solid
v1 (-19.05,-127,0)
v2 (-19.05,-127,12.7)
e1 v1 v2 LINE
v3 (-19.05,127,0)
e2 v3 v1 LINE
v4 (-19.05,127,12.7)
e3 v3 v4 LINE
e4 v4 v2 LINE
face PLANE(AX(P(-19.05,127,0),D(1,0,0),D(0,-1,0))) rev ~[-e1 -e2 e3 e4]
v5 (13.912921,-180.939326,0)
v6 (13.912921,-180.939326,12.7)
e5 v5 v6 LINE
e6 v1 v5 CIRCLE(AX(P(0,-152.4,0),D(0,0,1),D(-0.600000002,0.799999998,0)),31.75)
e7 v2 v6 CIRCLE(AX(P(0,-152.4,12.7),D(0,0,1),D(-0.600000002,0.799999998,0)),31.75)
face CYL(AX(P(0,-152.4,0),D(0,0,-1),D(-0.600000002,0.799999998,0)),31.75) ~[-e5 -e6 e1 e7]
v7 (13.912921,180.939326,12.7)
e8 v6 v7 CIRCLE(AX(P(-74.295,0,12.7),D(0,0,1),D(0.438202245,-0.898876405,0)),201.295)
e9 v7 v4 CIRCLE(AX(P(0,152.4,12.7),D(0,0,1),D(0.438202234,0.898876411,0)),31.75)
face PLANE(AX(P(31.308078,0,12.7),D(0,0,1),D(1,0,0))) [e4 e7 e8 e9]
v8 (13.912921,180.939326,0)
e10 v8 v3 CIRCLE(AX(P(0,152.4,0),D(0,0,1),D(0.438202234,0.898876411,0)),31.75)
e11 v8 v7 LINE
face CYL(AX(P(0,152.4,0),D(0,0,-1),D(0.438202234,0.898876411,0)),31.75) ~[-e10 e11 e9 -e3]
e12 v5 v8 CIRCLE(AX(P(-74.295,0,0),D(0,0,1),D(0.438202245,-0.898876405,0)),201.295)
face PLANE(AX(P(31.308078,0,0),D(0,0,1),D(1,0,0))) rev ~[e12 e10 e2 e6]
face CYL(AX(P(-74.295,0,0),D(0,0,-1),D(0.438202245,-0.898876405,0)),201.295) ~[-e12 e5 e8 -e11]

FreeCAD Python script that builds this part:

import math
import FreeCAD as App
import Part
import Sketcher
from FreeCAD import Vector
Q = App.Units.Quantity

doc = App.newDocument("Part")
body = doc.addObject("PartDesign::Body", "Body")

sketch1 = body.newObject("Sketcher::SketchObject", "Sketch")
sketch1.AttachmentSupport = (doc.getObject("XY_Plane"), [""])
sketch1.MapMode = "FlatFace"
sketch1.addGeometry(Part.ArcOfCircle(Part.Circle(Vector(-74.295, 0, 0), Vector(0, 0, 1), 201.295), math.radians(-64.010767), math.radians(64.010767)), False)
sketch1.addGeometry(Part.ArcOfCircle(Part.Circle(Vector(0, 152.4, 0), Vector(0, 0, 1), 31.75), math.radians(64.010767), math.radians(233.130102)), False)
sketch1.addGeometry(Part.LineSegment(Vector(-19.05, 127, 0), Vector(-19.05, -127, 0)), False)
sketch1.addGeometry(Part.ArcOfCircle(Part.Circle(Vector(0, -152.4, 0), Vector(0, 0, 1), 31.75), math.radians(126.869898), math.radians(295.989233)), False)
sketch1.addConstraint(Sketcher.Constraint("Tangent", 0, 2, 1, 1))
sketch1.addConstraint(Sketcher.Constraint("Coincident", 1, 2, 2, 1))
sketch1.addConstraint(Sketcher.Constraint("Coincident", 2, 2, 3, 1))
sketch1.addConstraint(Sketcher.Constraint("Tangent", 3, 2, 0, 1))
sketch1.addConstraint(Sketcher.Constraint("Vertical", 2))
sketch1.addConstraint(Sketcher.Constraint("Equal", 1, 3))
sketch1.addConstraint(Sketcher.Constraint("Symmetric", 1, 3, 3, 3, -1, 1))
sketch1.addConstraint(Sketcher.Constraint("PointOnObject", 0, 3, -1))
sketch1.addConstraint(Sketcher.Constraint("DistanceY", 2, 2, 2, 1, Q("10 in")))
sketch1.addConstraint(Sketcher.Constraint("Radius", 1, Q("1.25 in")))
sketch1.addConstraint(Sketcher.Constraint("DistanceY", -1, 1, 1, 3, Q("6 in")))
sketch1.addConstraint(Sketcher.Constraint("Radius", 0, Q("7.925 in")))
pad1 = body.newObject("PartDesign::Pad", "Pad")
pad1.Profile = sketch1
pad1.Length = Q("0.5 in")

doc.recompute()
